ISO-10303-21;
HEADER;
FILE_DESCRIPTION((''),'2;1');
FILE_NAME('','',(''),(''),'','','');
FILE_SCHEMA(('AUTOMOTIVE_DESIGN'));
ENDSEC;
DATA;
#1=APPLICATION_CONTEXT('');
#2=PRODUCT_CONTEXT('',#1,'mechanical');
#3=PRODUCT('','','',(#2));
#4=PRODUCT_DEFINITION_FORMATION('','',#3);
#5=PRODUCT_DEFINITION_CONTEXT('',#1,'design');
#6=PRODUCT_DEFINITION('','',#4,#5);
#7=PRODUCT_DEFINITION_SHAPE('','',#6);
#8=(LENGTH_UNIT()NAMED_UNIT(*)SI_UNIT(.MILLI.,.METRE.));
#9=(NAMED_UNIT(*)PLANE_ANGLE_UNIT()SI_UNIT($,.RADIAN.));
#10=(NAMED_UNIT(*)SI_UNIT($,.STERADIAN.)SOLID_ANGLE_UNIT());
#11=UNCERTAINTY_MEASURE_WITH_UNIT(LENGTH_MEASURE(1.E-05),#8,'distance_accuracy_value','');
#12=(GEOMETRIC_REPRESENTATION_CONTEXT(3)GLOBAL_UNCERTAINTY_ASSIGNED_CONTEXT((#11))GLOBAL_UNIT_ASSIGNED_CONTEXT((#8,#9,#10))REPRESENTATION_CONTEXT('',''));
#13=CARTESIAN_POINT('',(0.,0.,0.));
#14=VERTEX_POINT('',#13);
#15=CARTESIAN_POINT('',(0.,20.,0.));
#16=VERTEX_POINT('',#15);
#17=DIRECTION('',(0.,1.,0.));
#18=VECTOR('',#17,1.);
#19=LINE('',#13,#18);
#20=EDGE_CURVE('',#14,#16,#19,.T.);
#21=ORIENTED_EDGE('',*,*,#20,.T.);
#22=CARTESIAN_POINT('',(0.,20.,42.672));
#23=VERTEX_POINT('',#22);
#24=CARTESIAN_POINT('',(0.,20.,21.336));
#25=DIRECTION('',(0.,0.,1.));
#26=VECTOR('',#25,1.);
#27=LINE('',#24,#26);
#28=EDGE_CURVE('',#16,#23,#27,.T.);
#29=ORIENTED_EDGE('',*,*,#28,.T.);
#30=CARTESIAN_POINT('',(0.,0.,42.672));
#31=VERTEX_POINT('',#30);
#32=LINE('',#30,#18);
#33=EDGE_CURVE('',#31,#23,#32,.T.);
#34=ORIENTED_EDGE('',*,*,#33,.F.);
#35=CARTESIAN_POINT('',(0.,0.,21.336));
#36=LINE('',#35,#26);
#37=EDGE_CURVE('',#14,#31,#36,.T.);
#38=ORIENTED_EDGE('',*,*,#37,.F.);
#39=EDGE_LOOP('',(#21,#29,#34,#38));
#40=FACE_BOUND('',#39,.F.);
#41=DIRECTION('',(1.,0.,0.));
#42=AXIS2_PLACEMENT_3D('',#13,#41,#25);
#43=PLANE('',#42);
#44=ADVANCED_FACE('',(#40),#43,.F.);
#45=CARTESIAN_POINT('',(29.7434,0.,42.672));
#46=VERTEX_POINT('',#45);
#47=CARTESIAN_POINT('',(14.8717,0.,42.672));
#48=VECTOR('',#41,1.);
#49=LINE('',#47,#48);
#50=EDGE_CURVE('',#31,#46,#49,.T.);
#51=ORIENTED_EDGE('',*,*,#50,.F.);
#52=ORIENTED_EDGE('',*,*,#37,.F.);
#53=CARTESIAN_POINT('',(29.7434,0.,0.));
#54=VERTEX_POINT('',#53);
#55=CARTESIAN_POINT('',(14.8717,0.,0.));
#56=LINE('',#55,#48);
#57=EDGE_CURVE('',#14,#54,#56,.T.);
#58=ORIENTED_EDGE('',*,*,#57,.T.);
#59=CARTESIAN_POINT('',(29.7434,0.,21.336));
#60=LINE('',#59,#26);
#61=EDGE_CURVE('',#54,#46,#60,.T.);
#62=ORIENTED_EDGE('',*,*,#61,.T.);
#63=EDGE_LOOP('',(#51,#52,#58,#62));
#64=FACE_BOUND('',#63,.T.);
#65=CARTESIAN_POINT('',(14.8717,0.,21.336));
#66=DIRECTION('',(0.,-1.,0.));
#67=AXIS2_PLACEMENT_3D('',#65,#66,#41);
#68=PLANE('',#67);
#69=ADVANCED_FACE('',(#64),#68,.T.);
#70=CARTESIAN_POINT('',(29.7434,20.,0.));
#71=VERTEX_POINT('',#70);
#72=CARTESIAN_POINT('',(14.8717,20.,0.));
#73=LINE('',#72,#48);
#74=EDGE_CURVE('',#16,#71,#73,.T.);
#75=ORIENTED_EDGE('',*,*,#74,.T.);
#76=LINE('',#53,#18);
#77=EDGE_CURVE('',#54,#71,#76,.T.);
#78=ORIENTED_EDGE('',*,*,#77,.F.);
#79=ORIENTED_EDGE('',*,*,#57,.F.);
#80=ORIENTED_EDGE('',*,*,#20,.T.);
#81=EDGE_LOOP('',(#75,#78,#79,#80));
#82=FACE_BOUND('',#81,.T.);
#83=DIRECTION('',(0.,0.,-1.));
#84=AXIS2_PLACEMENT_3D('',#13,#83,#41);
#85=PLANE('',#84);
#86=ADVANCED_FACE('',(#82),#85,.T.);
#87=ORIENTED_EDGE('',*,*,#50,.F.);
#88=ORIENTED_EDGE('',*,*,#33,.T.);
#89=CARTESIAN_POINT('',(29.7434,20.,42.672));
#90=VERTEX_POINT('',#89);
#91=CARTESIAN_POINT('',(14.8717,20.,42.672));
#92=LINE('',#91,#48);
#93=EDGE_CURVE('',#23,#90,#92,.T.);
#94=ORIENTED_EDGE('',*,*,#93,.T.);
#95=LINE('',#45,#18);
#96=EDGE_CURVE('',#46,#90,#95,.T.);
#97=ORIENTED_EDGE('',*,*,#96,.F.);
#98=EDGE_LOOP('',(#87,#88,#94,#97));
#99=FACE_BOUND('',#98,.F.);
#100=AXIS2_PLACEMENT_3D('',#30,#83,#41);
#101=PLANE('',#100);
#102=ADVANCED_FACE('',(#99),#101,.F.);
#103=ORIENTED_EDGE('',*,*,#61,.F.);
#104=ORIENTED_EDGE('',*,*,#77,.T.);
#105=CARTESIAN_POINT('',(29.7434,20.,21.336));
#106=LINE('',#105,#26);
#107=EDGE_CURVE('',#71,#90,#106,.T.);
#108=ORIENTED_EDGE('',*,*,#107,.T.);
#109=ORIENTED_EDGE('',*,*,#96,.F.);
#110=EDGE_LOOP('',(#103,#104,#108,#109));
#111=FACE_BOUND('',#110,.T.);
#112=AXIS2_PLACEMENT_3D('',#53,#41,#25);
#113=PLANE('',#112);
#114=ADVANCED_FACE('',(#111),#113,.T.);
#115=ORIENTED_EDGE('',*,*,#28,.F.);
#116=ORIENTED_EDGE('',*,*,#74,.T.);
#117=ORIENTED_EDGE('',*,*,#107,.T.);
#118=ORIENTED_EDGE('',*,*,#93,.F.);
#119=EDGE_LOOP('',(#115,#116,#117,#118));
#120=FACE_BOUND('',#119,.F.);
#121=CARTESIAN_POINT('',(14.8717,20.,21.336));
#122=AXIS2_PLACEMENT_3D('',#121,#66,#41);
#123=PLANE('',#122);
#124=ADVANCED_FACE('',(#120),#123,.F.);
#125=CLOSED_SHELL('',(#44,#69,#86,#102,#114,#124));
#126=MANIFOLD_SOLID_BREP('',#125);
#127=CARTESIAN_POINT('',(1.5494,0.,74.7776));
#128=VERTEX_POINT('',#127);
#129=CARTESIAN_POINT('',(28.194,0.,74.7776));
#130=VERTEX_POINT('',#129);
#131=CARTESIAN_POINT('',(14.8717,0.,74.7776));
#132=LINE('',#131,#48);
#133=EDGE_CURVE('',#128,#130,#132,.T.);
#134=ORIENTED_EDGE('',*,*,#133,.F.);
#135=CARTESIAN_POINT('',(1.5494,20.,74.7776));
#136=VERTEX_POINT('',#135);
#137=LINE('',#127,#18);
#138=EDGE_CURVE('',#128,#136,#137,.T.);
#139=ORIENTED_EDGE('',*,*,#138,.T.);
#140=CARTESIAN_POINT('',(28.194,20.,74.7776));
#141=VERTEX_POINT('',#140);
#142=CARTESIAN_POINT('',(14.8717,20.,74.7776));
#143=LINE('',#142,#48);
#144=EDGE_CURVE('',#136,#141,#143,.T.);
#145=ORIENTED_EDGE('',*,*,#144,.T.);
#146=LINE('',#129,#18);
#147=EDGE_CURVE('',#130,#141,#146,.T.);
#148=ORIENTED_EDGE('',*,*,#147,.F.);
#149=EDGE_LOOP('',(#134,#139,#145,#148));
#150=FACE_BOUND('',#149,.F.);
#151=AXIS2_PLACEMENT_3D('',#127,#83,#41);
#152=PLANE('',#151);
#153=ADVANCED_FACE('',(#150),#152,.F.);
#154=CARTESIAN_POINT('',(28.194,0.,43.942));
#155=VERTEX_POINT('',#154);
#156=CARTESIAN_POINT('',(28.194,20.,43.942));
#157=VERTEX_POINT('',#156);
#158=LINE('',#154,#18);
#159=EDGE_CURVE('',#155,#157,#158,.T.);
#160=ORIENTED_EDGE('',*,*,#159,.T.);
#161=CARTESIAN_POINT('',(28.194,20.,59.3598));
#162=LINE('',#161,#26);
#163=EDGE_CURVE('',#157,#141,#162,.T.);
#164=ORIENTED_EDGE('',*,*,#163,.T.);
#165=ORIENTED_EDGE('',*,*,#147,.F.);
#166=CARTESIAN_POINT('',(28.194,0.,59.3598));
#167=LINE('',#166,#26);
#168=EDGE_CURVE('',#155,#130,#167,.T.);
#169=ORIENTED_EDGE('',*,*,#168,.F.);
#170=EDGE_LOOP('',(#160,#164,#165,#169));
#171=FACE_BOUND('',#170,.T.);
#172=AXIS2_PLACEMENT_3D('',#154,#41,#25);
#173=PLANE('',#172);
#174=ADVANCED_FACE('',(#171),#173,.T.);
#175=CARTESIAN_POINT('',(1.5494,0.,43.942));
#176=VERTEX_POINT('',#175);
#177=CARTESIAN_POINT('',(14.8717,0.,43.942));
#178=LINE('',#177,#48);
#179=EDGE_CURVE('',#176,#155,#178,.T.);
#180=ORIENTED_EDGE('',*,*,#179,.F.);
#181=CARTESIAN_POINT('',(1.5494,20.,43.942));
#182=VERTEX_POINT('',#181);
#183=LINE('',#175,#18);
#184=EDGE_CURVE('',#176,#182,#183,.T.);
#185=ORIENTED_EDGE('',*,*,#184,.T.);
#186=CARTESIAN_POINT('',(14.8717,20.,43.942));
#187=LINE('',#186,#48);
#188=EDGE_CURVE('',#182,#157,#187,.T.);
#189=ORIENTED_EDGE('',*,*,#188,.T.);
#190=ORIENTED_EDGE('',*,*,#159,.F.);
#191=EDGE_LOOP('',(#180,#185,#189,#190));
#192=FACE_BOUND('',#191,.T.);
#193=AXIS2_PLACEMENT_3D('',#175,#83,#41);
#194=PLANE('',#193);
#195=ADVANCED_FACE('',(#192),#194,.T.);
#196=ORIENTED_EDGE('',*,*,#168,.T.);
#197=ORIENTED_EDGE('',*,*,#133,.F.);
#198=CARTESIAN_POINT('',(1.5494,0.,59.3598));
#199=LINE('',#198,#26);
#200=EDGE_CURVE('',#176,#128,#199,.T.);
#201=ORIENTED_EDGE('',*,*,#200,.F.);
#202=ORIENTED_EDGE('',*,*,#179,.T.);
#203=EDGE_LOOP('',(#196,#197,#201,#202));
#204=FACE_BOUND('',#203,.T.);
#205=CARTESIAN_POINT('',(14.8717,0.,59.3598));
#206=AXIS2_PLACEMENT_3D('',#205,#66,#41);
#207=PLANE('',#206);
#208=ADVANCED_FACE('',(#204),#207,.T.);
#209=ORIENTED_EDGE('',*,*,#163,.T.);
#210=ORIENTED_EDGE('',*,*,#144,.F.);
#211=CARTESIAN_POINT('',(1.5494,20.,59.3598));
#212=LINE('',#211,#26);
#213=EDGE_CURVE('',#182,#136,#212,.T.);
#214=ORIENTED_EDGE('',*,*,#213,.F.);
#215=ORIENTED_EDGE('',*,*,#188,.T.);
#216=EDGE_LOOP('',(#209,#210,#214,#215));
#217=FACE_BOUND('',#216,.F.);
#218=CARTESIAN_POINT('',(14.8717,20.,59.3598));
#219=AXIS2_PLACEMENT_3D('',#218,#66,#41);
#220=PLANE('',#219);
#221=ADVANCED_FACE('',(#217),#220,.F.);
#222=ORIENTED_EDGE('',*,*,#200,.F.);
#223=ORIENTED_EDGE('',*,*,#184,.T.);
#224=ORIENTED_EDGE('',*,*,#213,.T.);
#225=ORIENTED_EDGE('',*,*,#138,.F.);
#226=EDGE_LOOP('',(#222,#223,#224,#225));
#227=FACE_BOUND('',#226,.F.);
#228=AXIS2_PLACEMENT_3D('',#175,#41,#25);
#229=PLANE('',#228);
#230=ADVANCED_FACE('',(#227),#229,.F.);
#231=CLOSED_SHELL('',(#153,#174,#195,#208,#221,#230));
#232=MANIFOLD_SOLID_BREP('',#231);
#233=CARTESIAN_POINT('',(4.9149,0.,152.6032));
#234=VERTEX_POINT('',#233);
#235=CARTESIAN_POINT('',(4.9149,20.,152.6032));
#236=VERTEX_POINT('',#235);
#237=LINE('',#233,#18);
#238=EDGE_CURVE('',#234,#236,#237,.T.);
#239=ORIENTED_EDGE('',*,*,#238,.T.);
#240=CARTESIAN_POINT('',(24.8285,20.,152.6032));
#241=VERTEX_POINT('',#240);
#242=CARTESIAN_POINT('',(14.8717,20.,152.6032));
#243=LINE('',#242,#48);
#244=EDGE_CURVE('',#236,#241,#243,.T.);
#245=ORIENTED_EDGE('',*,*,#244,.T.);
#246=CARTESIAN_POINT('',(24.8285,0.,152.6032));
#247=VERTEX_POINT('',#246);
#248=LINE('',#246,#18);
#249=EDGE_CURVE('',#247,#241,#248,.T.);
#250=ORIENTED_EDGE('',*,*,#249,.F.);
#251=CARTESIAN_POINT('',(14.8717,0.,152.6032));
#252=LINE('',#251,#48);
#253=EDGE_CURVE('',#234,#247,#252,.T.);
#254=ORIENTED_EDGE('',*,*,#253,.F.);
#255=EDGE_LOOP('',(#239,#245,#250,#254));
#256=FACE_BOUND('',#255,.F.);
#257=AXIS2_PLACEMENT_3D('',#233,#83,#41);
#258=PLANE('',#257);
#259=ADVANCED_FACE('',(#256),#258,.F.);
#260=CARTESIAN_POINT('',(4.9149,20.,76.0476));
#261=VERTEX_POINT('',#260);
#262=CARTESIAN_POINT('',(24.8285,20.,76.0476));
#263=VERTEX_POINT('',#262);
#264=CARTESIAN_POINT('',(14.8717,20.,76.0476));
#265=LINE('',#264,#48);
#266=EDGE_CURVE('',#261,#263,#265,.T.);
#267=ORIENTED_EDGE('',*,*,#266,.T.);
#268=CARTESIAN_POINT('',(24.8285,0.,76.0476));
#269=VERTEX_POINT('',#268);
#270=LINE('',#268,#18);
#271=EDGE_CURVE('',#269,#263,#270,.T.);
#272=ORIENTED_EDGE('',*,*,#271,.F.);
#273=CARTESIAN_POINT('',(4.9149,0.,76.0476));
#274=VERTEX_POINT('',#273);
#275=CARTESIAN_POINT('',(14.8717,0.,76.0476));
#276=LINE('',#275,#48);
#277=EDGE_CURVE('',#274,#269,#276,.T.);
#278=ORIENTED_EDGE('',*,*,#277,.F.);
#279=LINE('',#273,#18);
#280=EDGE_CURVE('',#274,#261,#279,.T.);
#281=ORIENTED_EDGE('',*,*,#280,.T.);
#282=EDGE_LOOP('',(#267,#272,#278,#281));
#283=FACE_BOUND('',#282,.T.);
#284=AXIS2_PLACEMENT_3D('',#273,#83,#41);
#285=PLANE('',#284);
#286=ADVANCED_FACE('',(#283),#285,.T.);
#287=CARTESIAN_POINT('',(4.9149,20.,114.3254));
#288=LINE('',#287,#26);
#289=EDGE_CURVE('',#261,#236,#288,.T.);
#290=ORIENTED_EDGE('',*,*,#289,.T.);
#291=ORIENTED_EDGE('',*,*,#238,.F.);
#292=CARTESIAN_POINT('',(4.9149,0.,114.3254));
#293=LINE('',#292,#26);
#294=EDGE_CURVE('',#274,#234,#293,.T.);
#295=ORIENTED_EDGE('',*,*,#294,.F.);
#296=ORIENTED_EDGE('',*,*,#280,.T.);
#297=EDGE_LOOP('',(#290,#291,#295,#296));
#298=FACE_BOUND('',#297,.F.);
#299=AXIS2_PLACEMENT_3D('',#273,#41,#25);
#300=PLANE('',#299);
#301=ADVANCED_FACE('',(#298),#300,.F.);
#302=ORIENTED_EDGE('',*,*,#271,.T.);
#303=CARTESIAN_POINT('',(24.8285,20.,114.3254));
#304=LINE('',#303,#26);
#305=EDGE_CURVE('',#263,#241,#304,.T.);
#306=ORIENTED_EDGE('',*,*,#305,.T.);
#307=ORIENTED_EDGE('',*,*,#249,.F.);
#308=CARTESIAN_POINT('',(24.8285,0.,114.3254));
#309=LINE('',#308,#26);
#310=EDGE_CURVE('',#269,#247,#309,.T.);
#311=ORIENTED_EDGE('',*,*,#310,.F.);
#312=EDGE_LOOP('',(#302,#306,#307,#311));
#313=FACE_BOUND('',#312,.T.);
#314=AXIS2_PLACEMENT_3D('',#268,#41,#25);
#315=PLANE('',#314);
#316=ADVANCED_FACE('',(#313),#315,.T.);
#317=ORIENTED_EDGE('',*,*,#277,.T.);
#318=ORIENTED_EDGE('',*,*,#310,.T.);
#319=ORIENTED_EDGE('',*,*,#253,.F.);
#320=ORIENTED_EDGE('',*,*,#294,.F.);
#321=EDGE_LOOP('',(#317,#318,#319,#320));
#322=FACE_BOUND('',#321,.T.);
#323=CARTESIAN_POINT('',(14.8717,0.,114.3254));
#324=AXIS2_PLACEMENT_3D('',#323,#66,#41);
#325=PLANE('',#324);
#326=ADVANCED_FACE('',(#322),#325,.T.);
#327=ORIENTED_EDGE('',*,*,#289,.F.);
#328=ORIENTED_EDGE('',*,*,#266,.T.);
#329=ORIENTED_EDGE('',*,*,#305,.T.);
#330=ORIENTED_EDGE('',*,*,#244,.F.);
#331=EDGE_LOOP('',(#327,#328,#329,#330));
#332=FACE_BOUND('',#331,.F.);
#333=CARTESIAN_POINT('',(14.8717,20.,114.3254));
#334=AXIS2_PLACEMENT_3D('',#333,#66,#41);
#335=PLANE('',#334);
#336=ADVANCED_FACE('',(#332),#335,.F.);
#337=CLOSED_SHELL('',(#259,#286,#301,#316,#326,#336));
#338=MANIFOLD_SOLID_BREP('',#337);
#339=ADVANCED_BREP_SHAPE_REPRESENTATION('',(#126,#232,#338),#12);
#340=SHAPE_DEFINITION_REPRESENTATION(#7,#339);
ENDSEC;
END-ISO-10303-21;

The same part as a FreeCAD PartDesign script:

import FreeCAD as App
import Part
import Sketcher
Q = App.Units.Quantity

doc = App.newDocument("Part")
body = doc.addObject("PartDesign::Body", "Body")
body.AllowCompound = True

# Sketch on XZ plane
sketch1 = body.newObject("Sketcher::SketchObject", "Sketch")
sketch1.AttachmentSupport = (doc.getObject("XZ_Plane"), [""])
sketch1.MapMode = "FlatFace"
sketch1.addGeometry(Part.LineSegment(App.Vector(0, 43, 0), App.Vector(0, 0, 0)), False)
sketch1.addGeometry(Part.LineSegment(App.Vector(0, 0, 0), App.Vector(30, 0, 0)), False)
sketch1.addGeometry(Part.LineSegment(App.Vector(30, 0, 0), App.Vector(30, 43, 0)), False)
sketch1.addGeometry(Part.LineSegment(App.Vector(30, 43, 0), App.Vector(0, 43, 0)), False)
sketch1.addGeometry(Part.LineSegment(App.Vector(2, 75, 0), App.Vector(2, 44, 0)), False)
sketch1.addGeometry(Part.LineSegment(App.Vector(2, 44, 0), App.Vector(28, 44, 0)), False)
sketch1.addGeometry(Part.LineSegment(App.Vector(28, 44, 0), App.Vector(28, 75, 0)), False)
sketch1.addGeometry(Part.LineSegment(App.Vector(28, 75, 0), App.Vector(2, 75, 0)), False)
sketch1.addGeometry(Part.LineSegment(App.Vector(5, 153, 0), App.Vector(5, 76, 0)), False)
sketch1.addGeometry(Part.LineSegment(App.Vector(5, 76, 0), App.Vector(25, 76, 0)), False)
sketch1.addGeometry(Part.LineSegment(App.Vector(25, 76, 0), App.Vector(25, 153, 0)), False)
sketch1.addGeometry(Part.LineSegment(App.Vector(25, 153, 0), App.Vector(5, 153, 0)), False)
sketch1.addConstraint(Sketcher.Constraint("Coincident", 0, 2, 1, 1))
sketch1.addConstraint(Sketcher.Constraint("Coincident", 1, 2, 2, 1))
sketch1.addConstraint(Sketcher.Constraint("Coincident", 2, 2, 3, 1))
sketch1.addConstraint(Sketcher.Constraint("Coincident", 3, 2, 0, 1))
sketch1.addConstraint(Sketcher.Constraint("Coincident", 4, 2, 5, 1))
sketch1.addConstraint(Sketcher.Constraint("Coincident", 5, 2, 6, 1))
sketch1.addConstraint(Sketcher.Constraint("Coincident", 6, 2, 7, 1))
sketch1.addConstraint(Sketcher.Constraint("Coincident", 7, 2, 4, 1))
sketch1.addConstraint(Sketcher.Constraint("Coincident", 8, 2, 9, 1))
sketch1.addConstraint(Sketcher.Constraint("Coincident", 9, 2, 10, 1))
sketch1.addConstraint(Sketcher.Constraint("Coincident", 10, 2, 11, 1))
sketch1.addConstraint(Sketcher.Constraint("Coincident", 11, 2, 8, 1))
sketch1.addConstraint(Sketcher.Constraint("Vertical", 0))
sketch1.addConstraint(Sketcher.Constraint("Horizontal", 1))
sketch1.addConstraint(Sketcher.Constraint("Vertical", 2))
sketch1.addConstraint(Sketcher.Constraint("Horizontal", 3))
sketch1.addConstraint(Sketcher.Constraint("Vertical", 4))
sketch1.addConstraint(Sketcher.Constraint("Horizontal", 5))
sketch1.addConstraint(Sketcher.Constraint("Vertical", 6))
sketch1.addConstraint(Sketcher.Constraint("Horizontal", 7))
sketch1.addConstraint(Sketcher.Constraint("Vertical", 8))
sketch1.addConstraint(Sketcher.Constraint("Horizontal", 9))
sketch1.addConstraint(Sketcher.Constraint("Vertical", 10))
sketch1.addConstraint(Sketcher.Constraint("Horizontal", 11))
sketch1.addConstraint(Sketcher.Constraint("Coincident", 0, 2, -1, 1))
sketch1.addConstraint(Sketcher.Constraint("DistanceY", 0, 2, 0, 1, Q("1.68 in")))
sketch1.addConstraint(Sketcher.Constraint("DistanceX", 1, 1, 1, 2, Q("1.171 in")))
sketch1.addConstraint(Sketcher.Constraint("DistanceX", 5, 1, 5, 2, Q("1.049 in")))
sketch1.addConstraint(Sketcher.Constraint("DistanceX", 9, 1, 9, 2, Q("0.784 in")))
sketch1.addConstraint(Sketcher.Constraint("DistanceY", 4, 2, 4, 1, Q("1.214 in")))
sketch1.addConstraint(Sketcher.Constraint("DistanceY", 8, 2, 8, 1, Q("3.014 in")))
sketch1.addConstraint(Sketcher.Constraint("DistanceY", -1, 1, 4, 2, Q("1.73 in")))
sketch1.addConstraint(Sketcher.Constraint("DistanceX", -1, 1, 5, 2, Q("1.11 in")))
sketch1.addConstraint(Sketcher.Constraint("DistanceY", 7, 2, 8, 2, Q("0.05 in")))
sketch1.addConstraint(Sketcher.Constraint("DistanceX", -1, 1, 8, 2, Q("0.1935 in")))
pad1 = body.newObject("PartDesign::Pad", "Pad")
pad1.Profile = sketch1
pad1.Length = 20
pad1.Reversed = True

doc.recompute()
